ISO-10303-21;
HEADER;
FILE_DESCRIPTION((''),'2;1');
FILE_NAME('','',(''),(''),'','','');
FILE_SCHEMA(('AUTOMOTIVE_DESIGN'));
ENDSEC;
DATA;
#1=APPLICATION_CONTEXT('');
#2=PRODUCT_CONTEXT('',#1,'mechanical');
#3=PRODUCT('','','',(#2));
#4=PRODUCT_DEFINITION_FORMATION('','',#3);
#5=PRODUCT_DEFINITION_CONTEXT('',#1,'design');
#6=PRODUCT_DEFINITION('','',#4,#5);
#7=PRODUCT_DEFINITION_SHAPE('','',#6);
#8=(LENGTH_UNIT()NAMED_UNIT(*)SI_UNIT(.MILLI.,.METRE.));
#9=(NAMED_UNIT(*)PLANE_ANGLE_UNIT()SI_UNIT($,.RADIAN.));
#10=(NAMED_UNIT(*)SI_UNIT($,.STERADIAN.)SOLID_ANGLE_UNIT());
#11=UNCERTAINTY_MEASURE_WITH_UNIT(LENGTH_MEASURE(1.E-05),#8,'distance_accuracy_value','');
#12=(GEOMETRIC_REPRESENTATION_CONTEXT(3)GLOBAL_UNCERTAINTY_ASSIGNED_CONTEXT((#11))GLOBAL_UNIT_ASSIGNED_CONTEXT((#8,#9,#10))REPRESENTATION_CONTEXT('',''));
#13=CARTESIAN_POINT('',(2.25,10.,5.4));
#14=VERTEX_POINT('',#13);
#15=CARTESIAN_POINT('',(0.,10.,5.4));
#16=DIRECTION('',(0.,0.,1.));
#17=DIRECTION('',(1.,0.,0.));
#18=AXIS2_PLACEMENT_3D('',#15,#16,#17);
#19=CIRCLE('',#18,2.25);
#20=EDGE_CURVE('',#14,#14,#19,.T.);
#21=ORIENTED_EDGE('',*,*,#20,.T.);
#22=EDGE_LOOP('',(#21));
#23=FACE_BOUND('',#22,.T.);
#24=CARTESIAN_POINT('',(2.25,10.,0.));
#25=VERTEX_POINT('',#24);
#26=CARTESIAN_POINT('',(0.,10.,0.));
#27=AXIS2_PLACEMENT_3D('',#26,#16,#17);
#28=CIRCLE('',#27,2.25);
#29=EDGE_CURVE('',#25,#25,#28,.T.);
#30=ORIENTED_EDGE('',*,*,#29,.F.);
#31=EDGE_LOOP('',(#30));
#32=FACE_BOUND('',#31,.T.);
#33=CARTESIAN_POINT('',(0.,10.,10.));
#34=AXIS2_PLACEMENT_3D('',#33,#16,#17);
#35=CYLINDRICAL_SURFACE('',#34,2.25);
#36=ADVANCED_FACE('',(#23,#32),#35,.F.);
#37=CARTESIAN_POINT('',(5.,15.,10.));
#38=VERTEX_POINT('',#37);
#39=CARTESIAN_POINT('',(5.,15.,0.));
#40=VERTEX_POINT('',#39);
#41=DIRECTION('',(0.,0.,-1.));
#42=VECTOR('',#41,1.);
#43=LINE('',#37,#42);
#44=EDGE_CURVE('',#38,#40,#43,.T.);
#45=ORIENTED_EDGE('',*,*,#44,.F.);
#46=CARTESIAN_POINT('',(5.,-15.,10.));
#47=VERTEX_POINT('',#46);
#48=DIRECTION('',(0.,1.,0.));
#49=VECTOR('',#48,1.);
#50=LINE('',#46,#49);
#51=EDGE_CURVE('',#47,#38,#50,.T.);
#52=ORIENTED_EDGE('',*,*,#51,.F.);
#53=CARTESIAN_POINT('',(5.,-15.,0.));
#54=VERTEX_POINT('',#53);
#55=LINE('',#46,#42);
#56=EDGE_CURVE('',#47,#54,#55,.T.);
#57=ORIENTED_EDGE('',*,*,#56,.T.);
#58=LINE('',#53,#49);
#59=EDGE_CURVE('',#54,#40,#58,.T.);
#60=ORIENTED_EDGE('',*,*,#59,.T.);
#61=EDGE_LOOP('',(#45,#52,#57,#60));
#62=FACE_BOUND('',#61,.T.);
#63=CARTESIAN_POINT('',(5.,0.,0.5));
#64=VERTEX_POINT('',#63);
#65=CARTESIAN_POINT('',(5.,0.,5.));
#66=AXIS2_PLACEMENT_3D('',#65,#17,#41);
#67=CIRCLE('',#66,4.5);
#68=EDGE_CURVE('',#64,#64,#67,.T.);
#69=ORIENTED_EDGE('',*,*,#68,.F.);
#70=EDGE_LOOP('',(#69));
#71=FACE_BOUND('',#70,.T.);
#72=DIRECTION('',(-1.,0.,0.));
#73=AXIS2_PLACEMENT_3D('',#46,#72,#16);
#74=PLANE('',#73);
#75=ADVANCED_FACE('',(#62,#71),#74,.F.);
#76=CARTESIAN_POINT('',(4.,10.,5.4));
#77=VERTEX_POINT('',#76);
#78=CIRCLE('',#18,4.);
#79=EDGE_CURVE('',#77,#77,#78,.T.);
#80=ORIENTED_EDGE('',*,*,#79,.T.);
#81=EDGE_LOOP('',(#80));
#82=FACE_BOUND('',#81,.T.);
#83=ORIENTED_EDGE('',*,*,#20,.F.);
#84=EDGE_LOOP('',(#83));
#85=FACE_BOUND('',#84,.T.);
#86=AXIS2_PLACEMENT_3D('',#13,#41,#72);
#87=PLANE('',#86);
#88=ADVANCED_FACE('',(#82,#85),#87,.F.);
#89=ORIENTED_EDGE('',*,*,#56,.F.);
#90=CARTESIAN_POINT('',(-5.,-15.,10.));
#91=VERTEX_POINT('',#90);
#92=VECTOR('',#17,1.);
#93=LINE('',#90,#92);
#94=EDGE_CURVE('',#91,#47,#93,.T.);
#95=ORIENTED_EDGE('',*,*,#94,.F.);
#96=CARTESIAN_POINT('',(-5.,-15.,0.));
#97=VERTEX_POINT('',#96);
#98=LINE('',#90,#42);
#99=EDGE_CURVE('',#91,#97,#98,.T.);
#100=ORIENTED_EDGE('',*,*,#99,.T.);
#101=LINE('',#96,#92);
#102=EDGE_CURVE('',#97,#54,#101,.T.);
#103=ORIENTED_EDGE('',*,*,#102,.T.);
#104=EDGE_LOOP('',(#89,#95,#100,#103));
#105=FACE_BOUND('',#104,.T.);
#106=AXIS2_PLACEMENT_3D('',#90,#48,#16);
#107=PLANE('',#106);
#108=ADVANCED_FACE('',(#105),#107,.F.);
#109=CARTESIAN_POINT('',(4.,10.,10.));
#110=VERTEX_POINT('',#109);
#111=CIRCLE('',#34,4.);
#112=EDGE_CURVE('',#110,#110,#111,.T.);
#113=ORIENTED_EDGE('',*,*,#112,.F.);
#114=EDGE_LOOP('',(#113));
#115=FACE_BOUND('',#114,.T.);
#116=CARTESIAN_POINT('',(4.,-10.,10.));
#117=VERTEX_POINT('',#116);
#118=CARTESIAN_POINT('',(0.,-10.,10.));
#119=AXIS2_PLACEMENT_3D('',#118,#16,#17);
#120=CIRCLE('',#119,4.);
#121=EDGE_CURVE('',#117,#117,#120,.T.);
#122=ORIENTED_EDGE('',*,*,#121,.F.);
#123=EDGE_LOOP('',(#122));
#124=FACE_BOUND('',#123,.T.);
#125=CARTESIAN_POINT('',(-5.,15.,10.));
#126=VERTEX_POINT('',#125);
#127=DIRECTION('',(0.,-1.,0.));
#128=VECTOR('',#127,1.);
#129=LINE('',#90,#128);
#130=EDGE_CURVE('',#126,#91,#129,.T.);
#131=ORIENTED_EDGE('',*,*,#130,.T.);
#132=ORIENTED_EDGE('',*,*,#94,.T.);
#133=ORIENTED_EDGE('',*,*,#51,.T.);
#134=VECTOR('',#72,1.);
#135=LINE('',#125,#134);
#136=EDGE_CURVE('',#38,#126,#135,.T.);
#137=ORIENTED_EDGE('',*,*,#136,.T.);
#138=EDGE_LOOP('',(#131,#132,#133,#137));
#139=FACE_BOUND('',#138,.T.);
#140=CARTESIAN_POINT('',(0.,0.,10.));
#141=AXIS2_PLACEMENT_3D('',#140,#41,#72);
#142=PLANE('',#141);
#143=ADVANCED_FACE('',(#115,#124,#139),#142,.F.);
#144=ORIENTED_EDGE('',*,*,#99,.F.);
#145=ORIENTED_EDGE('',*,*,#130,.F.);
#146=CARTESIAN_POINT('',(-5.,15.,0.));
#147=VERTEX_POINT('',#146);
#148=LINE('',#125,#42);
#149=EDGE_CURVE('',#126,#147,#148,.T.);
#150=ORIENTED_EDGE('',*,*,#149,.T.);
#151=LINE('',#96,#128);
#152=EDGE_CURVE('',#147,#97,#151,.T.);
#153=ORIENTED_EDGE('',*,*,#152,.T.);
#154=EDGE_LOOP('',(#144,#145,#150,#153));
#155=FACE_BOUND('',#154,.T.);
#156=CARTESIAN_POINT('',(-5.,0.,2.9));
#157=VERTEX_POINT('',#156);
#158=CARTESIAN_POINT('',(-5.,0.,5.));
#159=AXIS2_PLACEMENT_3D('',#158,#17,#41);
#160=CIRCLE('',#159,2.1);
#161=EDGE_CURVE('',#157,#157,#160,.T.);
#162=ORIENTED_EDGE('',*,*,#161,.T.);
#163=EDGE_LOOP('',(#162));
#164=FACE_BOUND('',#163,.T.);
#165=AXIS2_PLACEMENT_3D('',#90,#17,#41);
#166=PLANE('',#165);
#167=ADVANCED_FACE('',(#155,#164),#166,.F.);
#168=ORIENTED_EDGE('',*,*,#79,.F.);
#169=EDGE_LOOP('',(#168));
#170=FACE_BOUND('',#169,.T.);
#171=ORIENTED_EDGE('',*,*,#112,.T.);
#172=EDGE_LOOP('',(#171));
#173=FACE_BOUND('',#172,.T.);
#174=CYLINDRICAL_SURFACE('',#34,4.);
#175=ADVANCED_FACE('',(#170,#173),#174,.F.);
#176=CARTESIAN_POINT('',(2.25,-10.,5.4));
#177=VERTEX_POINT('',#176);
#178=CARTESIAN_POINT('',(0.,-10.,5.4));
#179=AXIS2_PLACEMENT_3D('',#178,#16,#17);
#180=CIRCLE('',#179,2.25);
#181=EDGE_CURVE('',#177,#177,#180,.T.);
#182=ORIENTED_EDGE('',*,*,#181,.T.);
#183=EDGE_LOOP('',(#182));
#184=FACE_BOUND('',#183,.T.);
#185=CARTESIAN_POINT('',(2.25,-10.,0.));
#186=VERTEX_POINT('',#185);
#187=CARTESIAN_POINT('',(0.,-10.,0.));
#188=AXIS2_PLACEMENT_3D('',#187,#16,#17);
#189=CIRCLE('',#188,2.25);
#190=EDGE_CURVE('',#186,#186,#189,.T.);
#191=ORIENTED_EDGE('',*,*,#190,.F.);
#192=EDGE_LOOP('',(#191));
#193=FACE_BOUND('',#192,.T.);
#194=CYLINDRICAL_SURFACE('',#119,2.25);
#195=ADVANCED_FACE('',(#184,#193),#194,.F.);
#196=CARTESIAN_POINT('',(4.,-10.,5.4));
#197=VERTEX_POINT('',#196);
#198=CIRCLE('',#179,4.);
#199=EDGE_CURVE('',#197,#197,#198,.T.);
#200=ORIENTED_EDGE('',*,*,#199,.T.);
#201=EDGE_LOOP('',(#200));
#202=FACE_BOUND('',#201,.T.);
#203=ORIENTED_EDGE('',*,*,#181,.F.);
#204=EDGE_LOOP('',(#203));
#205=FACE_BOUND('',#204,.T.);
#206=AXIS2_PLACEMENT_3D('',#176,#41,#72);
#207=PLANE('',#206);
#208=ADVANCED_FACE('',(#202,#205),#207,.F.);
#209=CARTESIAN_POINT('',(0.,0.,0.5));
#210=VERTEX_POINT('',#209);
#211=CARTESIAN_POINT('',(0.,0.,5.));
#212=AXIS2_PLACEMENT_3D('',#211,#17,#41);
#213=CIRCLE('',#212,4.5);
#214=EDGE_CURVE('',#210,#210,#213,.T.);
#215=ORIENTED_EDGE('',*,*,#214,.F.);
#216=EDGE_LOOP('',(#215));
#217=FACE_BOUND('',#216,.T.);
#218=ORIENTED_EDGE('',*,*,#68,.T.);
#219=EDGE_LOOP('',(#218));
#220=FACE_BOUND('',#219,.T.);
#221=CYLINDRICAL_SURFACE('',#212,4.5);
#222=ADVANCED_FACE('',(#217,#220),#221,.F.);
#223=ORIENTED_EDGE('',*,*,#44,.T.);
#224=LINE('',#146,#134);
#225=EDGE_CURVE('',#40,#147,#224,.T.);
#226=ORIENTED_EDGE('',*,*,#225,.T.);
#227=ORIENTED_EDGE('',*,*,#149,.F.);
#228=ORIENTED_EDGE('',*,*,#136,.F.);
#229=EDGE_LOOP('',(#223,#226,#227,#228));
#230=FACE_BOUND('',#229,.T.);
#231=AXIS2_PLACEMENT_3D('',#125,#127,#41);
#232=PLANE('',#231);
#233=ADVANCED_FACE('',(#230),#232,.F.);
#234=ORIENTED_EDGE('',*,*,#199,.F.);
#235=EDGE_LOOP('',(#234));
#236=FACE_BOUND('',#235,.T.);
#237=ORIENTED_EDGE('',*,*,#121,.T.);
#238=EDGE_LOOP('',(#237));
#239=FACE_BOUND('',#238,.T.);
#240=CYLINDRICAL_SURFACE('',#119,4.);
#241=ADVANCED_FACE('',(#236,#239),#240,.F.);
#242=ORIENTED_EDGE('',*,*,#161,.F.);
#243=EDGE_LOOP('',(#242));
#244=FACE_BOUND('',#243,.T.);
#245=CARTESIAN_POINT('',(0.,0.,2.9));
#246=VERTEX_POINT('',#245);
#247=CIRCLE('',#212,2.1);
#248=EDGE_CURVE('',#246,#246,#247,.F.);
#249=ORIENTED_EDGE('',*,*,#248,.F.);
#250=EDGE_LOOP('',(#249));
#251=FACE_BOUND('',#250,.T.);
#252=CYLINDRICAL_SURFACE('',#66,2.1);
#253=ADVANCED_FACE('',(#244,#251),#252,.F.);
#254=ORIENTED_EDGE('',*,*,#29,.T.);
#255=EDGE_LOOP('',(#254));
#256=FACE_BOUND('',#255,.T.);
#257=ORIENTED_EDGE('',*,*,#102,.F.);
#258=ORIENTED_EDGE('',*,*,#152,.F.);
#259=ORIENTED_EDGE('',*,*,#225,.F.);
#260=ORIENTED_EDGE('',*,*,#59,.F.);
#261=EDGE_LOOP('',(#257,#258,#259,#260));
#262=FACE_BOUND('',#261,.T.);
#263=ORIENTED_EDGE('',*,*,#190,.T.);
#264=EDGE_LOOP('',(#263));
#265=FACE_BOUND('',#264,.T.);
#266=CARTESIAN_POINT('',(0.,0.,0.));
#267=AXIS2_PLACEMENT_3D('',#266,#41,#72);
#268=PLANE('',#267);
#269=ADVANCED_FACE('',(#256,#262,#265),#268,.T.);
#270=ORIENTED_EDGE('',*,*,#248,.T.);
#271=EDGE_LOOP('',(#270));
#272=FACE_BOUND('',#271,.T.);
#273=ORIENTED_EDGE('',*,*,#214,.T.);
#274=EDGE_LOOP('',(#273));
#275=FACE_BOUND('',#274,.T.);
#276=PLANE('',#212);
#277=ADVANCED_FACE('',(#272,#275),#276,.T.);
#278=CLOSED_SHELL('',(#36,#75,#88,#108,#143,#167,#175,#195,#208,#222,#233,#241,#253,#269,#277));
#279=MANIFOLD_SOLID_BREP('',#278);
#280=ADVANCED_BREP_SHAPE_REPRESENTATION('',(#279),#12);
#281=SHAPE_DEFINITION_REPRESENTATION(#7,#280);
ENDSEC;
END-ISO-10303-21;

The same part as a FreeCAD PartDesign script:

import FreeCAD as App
import Part
import Sketcher

V = App.Vector
Q = App.Units.Quantity

doc = App.newDocument("Part")
body = doc.addObject("PartDesign::Body", "Body")

# Sketch on XY plane
sketch1 = body.newObject("Sketcher::SketchObject", "Sketch")
sketch1.AttachmentSupport = (doc.getObject("XY_Plane"), [""])
sketch1.MapMode = "FlatFace"
sketch1.addGeometry([
    Part.LineSegment(V(-5, 15, 0), V(-5, -15, 0)),
    Part.LineSegment(V(-5, -15, 0), V(5, -15, 0)),
    Part.LineSegment(V(5, -15, 0), V(5, 15, 0)),
    Part.LineSegment(V(5, 15, 0), V(-5, 15, 0)),
], False)
sketch1.addConstraint([
    Sketcher.Constraint("Coincident", 0, 2, 1, 1),
    Sketcher.Constraint("Coincident", 1, 2, 2, 1),
    Sketcher.Constraint("Coincident", 2, 2, 3, 1),
    Sketcher.Constraint("Coincident", 3, 2, 0, 1),
    Sketcher.Constraint("Vertical", 0),
    Sketcher.Constraint("Horizontal", 1),
    Sketcher.Constraint("Vertical", 2),
    Sketcher.Constraint("Horizontal", 3),
    Sketcher.Constraint("Symmetric", 0, 2, 2, 2, -1, 1),
    Sketcher.Constraint("DistanceX", 1, 1, 1, 2, Q("10 mm")),
    Sketcher.Constraint("DistanceY", 0, 2, 0, 1, Q("30 mm")),
])
pad1 = body.newObject("PartDesign::Pad", "Pad")
pad1.Profile = sketch1
pad1.Length = 10

# Sketch on XY plane
sketch2 = body.newObject("Sketcher::SketchObject", "Sketch001")
sketch2.AttachmentSupport = (doc.getObject("XY_Plane"), [""])
sketch2.MapMode = "FlatFace"
sketch2.AttachmentOffset = App.Placement(V(0, 0, 10), App.Rotation())
sketch2.addGeometry([
    Part.Circle(V(0, 10, 0), V(0, 0, 1), 2.25),
    Part.Circle(V(0, -10, 0), V(0, 0, 1), 2.25),
], False)
sketch2.addConstraint([
    Sketcher.Constraint("Equal", 0, 1),
    Sketcher.Constraint("Symmetric", 0, 3, 1, 3, -1, 1),
    Sketcher.Constraint("PointOnObject", 0, 3, -2),
    Sketcher.Constraint("Diameter", 0, Q("4.5 mm")),
    Sketcher.Constraint("DistanceY", -1, 1, 0, 3, Q("10 mm")),
])
doc.recompute()
hole = body.newObject("PartDesign::Hole", "Hole")
hole.Profile = sketch2
hole.ThreadType = "None"
hole.Diameter = 4.5
hole.DepthType = "ThroughAll"
hole.HoleCutType = "Counterbore"
hole.HoleCutDiameter = 8
hole.HoleCutDepth = 4.6

# Sketch on YZ plane
sketch3 = body.newObject("Sketcher::SketchObject", "Sketch002")
sketch3.AttachmentSupport = (doc.getObject("YZ_Plane"), [""])
sketch3.MapMode = "FlatFace"
sketch3.AttachmentOffset = App.Placement(V(0, 0, 5), App.Rotation())
sketch3.addGeometry(Part.Circle(V(0, 5, 0), V(0, 0, 1), 2.1), False)
sketch3.addConstraint([
    Sketcher.Constraint("PointOnObject", 0, 3, -2),
    Sketcher.Constraint("Diameter", 0, Q("4.2 mm")),
    Sketcher.Constraint("DistanceY", -1, 1, 0, 3, Q("5 mm")),
])
doc.recompute()
hole2 = body.newObject("PartDesign::Hole", "Hole001")
hole2.Profile = sketch3
hole2.ThreadType = "None"
hole2.Diameter = 4.2
hole2.DepthType = "ThroughAll"

# Sketch on YZ plane
sketch4 = body.newObject("Sketcher::SketchObject", "Sketch003")
sketch4.AttachmentSupport = (doc.getObject("YZ_Plane"), [""])
sketch4.MapMode = "FlatFace"
sketch4.AttachmentOffset = App.Placement(V(0, 0, 5), App.Rotation())
sketch4.addGeometry(Part.Circle(V(0, 5, 0), V(0, 0, 1), 4.5), False)
sketch4.addConstraint([
    Sketcher.Constraint("PointOnObject", 0, 3, -2),
    Sketcher.Constraint("Diameter", 0, Q("9 mm")),
    Sketcher.Constraint("DistanceY", -1, 1, 0, 3, Q("5 mm")),
])
pocket1 = body.newObject("PartDesign::Pocket", "Pocket")
pocket1.Profile = sketch4
pocket1.Length = 5

doc.recompute()
